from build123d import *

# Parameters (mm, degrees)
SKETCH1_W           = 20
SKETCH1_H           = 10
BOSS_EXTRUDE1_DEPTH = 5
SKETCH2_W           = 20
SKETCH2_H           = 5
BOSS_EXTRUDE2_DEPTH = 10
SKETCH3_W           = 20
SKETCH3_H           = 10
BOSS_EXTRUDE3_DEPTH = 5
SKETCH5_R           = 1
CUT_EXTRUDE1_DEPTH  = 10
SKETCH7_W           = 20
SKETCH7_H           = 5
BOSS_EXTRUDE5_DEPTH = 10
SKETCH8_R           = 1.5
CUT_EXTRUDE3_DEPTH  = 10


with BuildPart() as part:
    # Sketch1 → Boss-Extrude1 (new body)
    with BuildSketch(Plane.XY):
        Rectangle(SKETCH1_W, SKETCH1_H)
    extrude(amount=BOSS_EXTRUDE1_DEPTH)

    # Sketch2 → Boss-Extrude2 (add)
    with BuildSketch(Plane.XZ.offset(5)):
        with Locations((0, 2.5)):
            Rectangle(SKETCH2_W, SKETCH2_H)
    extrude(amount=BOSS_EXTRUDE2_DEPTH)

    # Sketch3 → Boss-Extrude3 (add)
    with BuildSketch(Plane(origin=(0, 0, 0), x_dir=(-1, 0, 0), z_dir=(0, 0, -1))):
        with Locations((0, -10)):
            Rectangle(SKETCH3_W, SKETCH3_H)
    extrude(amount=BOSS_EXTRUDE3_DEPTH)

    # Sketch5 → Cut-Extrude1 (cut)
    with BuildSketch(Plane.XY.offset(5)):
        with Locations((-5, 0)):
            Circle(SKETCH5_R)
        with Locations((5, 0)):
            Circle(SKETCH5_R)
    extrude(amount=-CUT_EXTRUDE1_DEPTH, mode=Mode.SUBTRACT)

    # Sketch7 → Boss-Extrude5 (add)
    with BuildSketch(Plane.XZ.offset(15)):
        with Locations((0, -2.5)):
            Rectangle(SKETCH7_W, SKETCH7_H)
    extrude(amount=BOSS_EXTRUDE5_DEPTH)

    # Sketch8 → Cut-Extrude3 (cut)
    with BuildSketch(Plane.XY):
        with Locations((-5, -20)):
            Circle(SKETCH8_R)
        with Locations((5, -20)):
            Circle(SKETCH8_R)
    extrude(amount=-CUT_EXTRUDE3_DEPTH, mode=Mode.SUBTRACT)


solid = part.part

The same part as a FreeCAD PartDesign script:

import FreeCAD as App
import Part
import Sketcher

V = App.Vector
Q = App.Units.Quantity

doc = App.newDocument("Part")
body = doc.addObject("PartDesign::Body", "Body")

sketch1 = body.newObject("Sketcher::SketchObject", "Sketch")
sketch1.AttachmentSupport = (doc.getObject("XY_Plane"), [""])
sketch1.MapMode = "FlatFace"
sketch1.addGeometry([
    Part.LineSegment(V(-10, 5, 0), V(-10, -5, 0)),
    Part.LineSegment(V(-10, -5, 0), V(10, -5, 0)),
    Part.LineSegment(V(10, -5, 0), V(10, 5, 0)),
    Part.LineSegment(V(10, 5, 0), V(-10, 5, 0)),
], False)
sketch1.addConstraint([
    Sketcher.Constraint("Coincident", 0, 2, 1, 1),
    Sketcher.Constraint("Coincident", 1, 2, 2, 1),
    Sketcher.Constraint("Coincident", 2, 2, 3, 1),
    Sketcher.Constraint("Coincident", 3, 2, 0, 1),
    Sketcher.Constraint("Vertical", 0),
    Sketcher.Constraint("Horizontal", 1),
    Sketcher.Constraint("Vertical", 2),
    Sketcher.Constraint("Horizontal", 3),
    Sketcher.Constraint("Symmetric", 0, 2, 2, 2, -1, 1),
    Sketcher.Constraint("DistanceX", 1, 1, 1, 2, Q("20 mm")),
    Sketcher.Constraint("DistanceY", 0, 2, 0, 1, Q("10 mm")),
])
pad1 = body.newObject("PartDesign::Pad", "Pad")
pad1.Profile = sketch1
pad1.Length = 5

sketch2 = body.newObject("Sketcher::SketchObject", "Sketch001")
sketch2.AttachmentSupport = (doc.getObject("XZ_Plane"), [""])
sketch2.MapMode = "FlatFace"
sketch2.AttachmentOffset = App.Placement(V(0, 0, 5), App.Rotation())
sketch2.addGeometry([
    Part.LineSegment(V(-10, 5, 0), V(-10, 0, 0)),
    Part.LineSegment(V(-10, 0, 0), V(10, 0, 0)),
    Part.LineSegment(V(10, 0, 0), V(10, 5, 0)),
    Part.LineSegment(V(10, 5, 0), V(-10, 5, 0)),
], False)
sketch2.addConstraint([
    Sketcher.Constraint("Coincident", 0, 2, 1, 1),
    Sketcher.Constraint("Coincident", 1, 2, 2, 1),
    Sketcher.Constraint("Coincident", 2, 2, 3, 1),
    Sketcher.Constraint("Coincident", 3, 2, 0, 1),
    Sketcher.Constraint("Vertical", 0),
    Sketcher.Constraint("Horizontal", 1),
    Sketcher.Constraint("Vertical", 2),
    Sketcher.Constraint("Horizontal", 3),
    Sketcher.Constraint("Symmetric", 0, 2, 1, 2, -1, 1),
    Sketcher.Constraint("DistanceX", 1, 1, 1, 2, Q("20 mm")),
    Sketcher.Constraint("DistanceY", 0, 2, 0, 1, Q("5 mm")),
])
pad2 = body.newObject("PartDesign::Pad", "Pad001")
pad2.Profile = sketch2
pad2.Length = 10

sketch3 = body.newObject("Sketcher::SketchObject", "Sketch002")
sketch3.AttachmentSupport = (doc.getObject("XY_Plane"), [""])
sketch3.MapMode = "FlatFace"
sketch3.addGeometry([
    Part.LineSegment(V(10, -5, 0), V(10, -15, 0)),
    Part.LineSegment(V(10, -15, 0), V(-10, -15, 0)),
    Part.LineSegment(V(-10, -15, 0), V(-10, -5, 0)),
    Part.LineSegment(V(-10, -5, 0), V(10, -5, 0)),
], False)
sketch3.addConstraint([
    Sketcher.Constraint("Coincident", 0, 2, 1, 1),
    Sketcher.Constraint("Coincident", 1, 2, 2, 1),
    Sketcher.Constraint("Coincident", 2, 2, 3, 1),
    Sketcher.Constraint("Coincident", 3, 2, 0, 1),
    Sketcher.Constraint("Vertical", 0),
    Sketcher.Constraint("Horizontal", 1),
    Sketcher.Constraint("Vertical", 2),
    Sketcher.Constraint("Horizontal", 3),
    Sketcher.Constraint("DistanceX", 1, 2, 1, 1, Q("20 mm")),
    Sketcher.Constraint("DistanceY", 0, 2, 0, 1, Q("10 mm")),
    Sketcher.Constraint("DistanceX", -1, 1, 0, 2, Q("10 mm")),
    Sketcher.Constraint("DistanceY", 0, 2, -1, 1, Q("15 mm")),
])
pad3 = body.newObject("PartDesign::Pad", "Pad002")
pad3.Profile = sketch3
pad3.Length = 5
pad3.Reversed = True

sketch4 = body.newObject("Sketcher::SketchObject", "Sketch003")
sketch4.AttachmentSupport = (doc.getObject("XY_Plane"), [""])
sketch4.MapMode = "FlatFace"
sketch4.AttachmentOffset = App.Placement(V(0, 0, 5), App.Rotation())
sketch4.addGeometry([
    Part.Circle(V(-5, 0, 0), V(0, 0, 1), 1),
    Part.Circle(V(5, 0, 0), V(0, 0, 1), 1),
], False)
sketch4.addConstraint([
    Sketcher.Constraint("Equal", 0, 1),
    Sketcher.Constraint("Symmetric", 0, 3, 1, 3, -1, 1),
    Sketcher.Constraint("PointOnObject", 0, 3, -1),
    Sketcher.Constraint("Diameter", 0, Q("2 mm")),
    Sketcher.Constraint("DistanceX", 0, 3, -1, 1, Q("5 mm")),
])
pocket1 = body.newObject("PartDesign::Pocket", "Pocket")
pocket1.Profile = sketch4
pocket1.Length = 10

sketch5 = body.newObject("Sketcher::SketchObject", "Sketch004")
sketch5.AttachmentSupport = (doc.getObject("XZ_Plane"), [""])
sketch5.MapMode = "FlatFace"
sketch5.AttachmentOffset = App.Placement(V(0, 0, 15), App.Rotation())
sketch5.addGeometry([
    Part.LineSegment(V(-10, 0, 0), V(-10, -5, 0)),
    Part.LineSegment(V(-10, -5, 0), V(10, -5, 0)),
    Part.LineSegment(V(10, -5, 0), V(10, 0, 0)),
    Part.LineSegment(V(10, 0, 0), V(-10, 0, 0)),
], False)
sketch5.addConstraint([
    Sketcher.Constraint("Coincident", 0, 2, 1, 1),
    Sketcher.Constraint("Coincident", 1, 2, 2, 1),
    Sketcher.Constraint("Coincident", 2, 2, 3, 1),
    Sketcher.Constraint("Coincident", 3, 2, 0, 1),
    Sketcher.Constraint("Vertical", 0),
    Sketcher.Constraint("Horizontal", 1),
    Sketcher.Constraint("Vertical", 2),
    Sketcher.Constraint("Horizontal", 3),
    Sketcher.Constraint("Symmetric", 2, 2, 3, 2, -1, 1),
    Sketcher.Constraint("DistanceX", 1, 1, 1, 2, Q("20 mm")),
    Sketcher.Constraint("DistanceY", 0, 2, 0, 1, Q("5 mm")),
])
pad4 = body.newObject("PartDesign::Pad", "Pad003")
pad4.Profile = sketch5
pad4.Length = 10

sketch6 = body.newObject("Sketcher::SketchObject", "Sketch005")
sketch6.AttachmentSupport = (doc.getObject("XY_Plane"), [""])
sketch6.MapMode = "FlatFace"
sketch6.addGeometry([
    Part.Circle(V(-5, -20, 0), V(0, 0, 1), 1.5),
    Part.Circle(V(5, -20, 0), V(0, 0, 1), 1.5),
], False)
sketch6.addConstraint([
    Sketcher.Constraint("Equal", 0, 1),
    Sketcher.Constraint("Symmetric", 0, 3, 1, 3, -2),
    Sketcher.Constraint("Diameter", 0, Q("3 mm")),
    Sketcher.Constraint("DistanceX", 0, 3, -1, 1, Q("5 mm")),
    Sketcher.Constraint("DistanceY", 0, 3, -1, 1, Q("20 mm")),
])
pocket2 = body.newObject("PartDesign::Pocket", "Pocket001")
pocket2.Profile = sketch6
pocket2.Length = 10

doc.recompute()
